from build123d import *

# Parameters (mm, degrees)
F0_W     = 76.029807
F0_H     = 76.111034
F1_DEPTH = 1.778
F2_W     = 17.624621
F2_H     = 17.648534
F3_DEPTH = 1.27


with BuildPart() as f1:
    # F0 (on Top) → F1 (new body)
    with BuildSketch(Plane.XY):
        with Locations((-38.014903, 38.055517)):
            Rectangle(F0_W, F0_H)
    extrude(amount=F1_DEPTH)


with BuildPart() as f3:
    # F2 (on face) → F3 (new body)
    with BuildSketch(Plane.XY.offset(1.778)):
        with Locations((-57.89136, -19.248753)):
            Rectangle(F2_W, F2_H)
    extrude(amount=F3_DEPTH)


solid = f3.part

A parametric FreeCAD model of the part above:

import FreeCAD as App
import Part
import Sketcher
Q = App.Units.Quantity

doc = App.newDocument("Part")
body = doc.addObject("PartDesign::Body", "Body")

sketch1 = doc.addObject("Sketcher::SketchObject", "Sketch")
body.addObject(sketch1)
sketch1.AttachmentSupport = (doc.XY_Plane, [""])
sketch1.MapMode = "FlatFace"
sketch1.addGeometry(Part.LineSegment(App.Vector(-76, 76, 0), App.Vector(-76, 0, 0)), False)
sketch1.addGeometry(Part.LineSegment(App.Vector(-76, 0, 0), App.Vector(0, 0, 0)), False)
sketch1.addGeometry(Part.LineSegment(App.Vector(0, 0, 0), App.Vector(0, 76, 0)), False)
sketch1.addGeometry(Part.LineSegment(App.Vector(0, 76, 0), App.Vector(-76, 76, 0)), False)
sketch1.addConstraint(Sketcher.Constraint("Coincident", 0, 2, 1, 1))
sketch1.addConstraint(Sketcher.Constraint("Coincident", 1, 2, 2, 1))
sketch1.addConstraint(Sketcher.Constraint("Coincident", 2, 2, 3, 1))
sketch1.addConstraint(Sketcher.Constraint("Coincident", 3, 2, 0, 1))
sketch1.addConstraint(Sketcher.Constraint("Vertical", 0))
sketch1.addConstraint(Sketcher.Constraint("Horizontal", 1))
sketch1.addConstraint(Sketcher.Constraint("Vertical", 2))
sketch1.addConstraint(Sketcher.Constraint("Horizontal", 3))
sketch1.addConstraint(Sketcher.Constraint("Coincident", 1, 2, -1, 1))
sketch1.addConstraint(Sketcher.Constraint("DistanceX", 1, 1, 1, 2, 76.029807))
sketch1.addConstraint(Sketcher.Constraint("DistanceY", 0, 2, 0, 1, 76.111034))
pad1 = doc.addObject("PartDesign::Pad", "Pad")
body.addObject(pad1)
pad1.Profile = sketch1
pad1.Length = Q("0.07 in")
body2 = doc.addObject("PartDesign::Body", "Body001")

sketch2 = doc.addObject("Sketcher::SketchObject", "Sketch001")
body2.addObject(sketch2)
sketch2.AttachmentSupport = (doc.getObject("XY_Plane001"), [""])
sketch2.MapMode = "FlatFace"
sketch2.AttachmentOffset = App.Placement(App.Vector(0, 0, 0.07 * 25.4), App.Rotation())
sketch2.addGeometry(Part.LineSegment(App.Vector(-67, -10, 0), App.Vector(-67, -28, 0)), False)
sketch2.addGeometry(Part.LineSegment(App.Vector(-67, -28, 0), App.Vector(-49, -28, 0)), False)
sketch2.addGeometry(Part.LineSegment(App.Vector(-49, -28, 0), App.Vector(-49, -10, 0)), False)
sketch2.addGeometry(Part.LineSegment(App.Vector(-49, -10, 0), App.Vector(-67, -10, 0)), False)
sketch2.addConstraint(Sketcher.Constraint("Coincident", 0, 2, 1, 1))
sketch2.addConstraint(Sketcher.Constraint("Coincident", 1, 2, 2, 1))
sketch2.addConstraint(Sketcher.Constraint("Coincident", 2, 2, 3, 1))
sketch2.addConstraint(Sketcher.Constraint("Coincident", 3, 2, 0, 1))
sketch2.addConstraint(Sketcher.Constraint("Vertical", 0))
sketch2.addConstraint(Sketcher.Constraint("Horizontal", 1))
sketch2.addConstraint(Sketcher.Constraint("Vertical", 2))
sketch2.addConstraint(Sketcher.Constraint("Horizontal", 3))
sketch2.addConstraint(Sketcher.Constraint("DistanceX", 1, 1, 1, 2, 17.624621))
sketch2.addConstraint(Sketcher.Constraint("DistanceY", 0, 2, 0, 1, 17.648534))
sketch2.addConstraint(Sketcher.Constraint("DistanceX", 0, 2, -1, 1, 66.703671))
sketch2.addConstraint(Sketcher.Constraint("DistanceY", 0, 2, -1, 1, 28.07302))
pad2 = doc.addObject("PartDesign::Pad", "Pad001")
body2.addObject(pad2)
pad2.Profile = sketch2
pad2.Length = Q("0.05 in")
body.Visibility = False

doc.recompute()
